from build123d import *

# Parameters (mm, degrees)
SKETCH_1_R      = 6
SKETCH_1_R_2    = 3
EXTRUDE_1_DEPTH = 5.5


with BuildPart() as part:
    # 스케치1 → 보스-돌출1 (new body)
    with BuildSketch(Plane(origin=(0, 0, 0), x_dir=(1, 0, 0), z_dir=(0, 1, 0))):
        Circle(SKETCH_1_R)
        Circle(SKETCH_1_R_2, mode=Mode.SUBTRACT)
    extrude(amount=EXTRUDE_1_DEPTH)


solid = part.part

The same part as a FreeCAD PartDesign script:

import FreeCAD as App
import Part
import Sketcher

V = App.Vector

doc = App.newDocument("Part")
params = doc.addObject("Spreadsheet::Sheet", "Params")
for row, (alias, value) in enumerate([
    ("sketch1_diameter", "12 mm"),
    ("sketch1_diameter2", "6 mm"),
    ("pad1_length", "5.5 mm"),
], start=1):
    params.set(f"A{row}", alias)
    params.set(f"B{row}", "=" + value)
    params.setAlias(f"B{row}", alias)

body = doc.addObject("PartDesign::Body", "Body")

# Sketch on XZ plane
sketch1 = body.newObject("Sketcher::SketchObject", "Sketch")
sketch1.AttachmentSupport = (doc.getObject("XZ_Plane"), [""])
sketch1.MapMode = "FlatFace"
sketch1.addGeometry(Part.Circle(V(0, 0, 0), V(0, 0, 1), 6), False)
sketch1.addGeometry(Part.Circle(V(0, 0, 0), V(0, 0, 1), 3), False)
sketch1.addConstraint(Sketcher.Constraint("Coincident", 0, 3, -1, 1))
sketch1.addConstraint(Sketcher.Constraint("Coincident", 1, 3, -1, 1))
sketch1.addConstraint(Sketcher.Constraint("Diameter", 0, 12.0))
sketch1.addConstraint(Sketcher.Constraint("Diameter", 1, 6.0))
sketch1.setExpression("Constraints[2]", "Params.sketch1_diameter")
sketch1.setExpression("Constraints[3]", "Params.sketch1_diameter2")
pad1 = body.newObject("PartDesign::Pad", "Pad")
pad1.Profile = sketch1
pad1.setExpression("Length", "Params.pad1_length")
pad1.Reversed = True

doc.recompute()
